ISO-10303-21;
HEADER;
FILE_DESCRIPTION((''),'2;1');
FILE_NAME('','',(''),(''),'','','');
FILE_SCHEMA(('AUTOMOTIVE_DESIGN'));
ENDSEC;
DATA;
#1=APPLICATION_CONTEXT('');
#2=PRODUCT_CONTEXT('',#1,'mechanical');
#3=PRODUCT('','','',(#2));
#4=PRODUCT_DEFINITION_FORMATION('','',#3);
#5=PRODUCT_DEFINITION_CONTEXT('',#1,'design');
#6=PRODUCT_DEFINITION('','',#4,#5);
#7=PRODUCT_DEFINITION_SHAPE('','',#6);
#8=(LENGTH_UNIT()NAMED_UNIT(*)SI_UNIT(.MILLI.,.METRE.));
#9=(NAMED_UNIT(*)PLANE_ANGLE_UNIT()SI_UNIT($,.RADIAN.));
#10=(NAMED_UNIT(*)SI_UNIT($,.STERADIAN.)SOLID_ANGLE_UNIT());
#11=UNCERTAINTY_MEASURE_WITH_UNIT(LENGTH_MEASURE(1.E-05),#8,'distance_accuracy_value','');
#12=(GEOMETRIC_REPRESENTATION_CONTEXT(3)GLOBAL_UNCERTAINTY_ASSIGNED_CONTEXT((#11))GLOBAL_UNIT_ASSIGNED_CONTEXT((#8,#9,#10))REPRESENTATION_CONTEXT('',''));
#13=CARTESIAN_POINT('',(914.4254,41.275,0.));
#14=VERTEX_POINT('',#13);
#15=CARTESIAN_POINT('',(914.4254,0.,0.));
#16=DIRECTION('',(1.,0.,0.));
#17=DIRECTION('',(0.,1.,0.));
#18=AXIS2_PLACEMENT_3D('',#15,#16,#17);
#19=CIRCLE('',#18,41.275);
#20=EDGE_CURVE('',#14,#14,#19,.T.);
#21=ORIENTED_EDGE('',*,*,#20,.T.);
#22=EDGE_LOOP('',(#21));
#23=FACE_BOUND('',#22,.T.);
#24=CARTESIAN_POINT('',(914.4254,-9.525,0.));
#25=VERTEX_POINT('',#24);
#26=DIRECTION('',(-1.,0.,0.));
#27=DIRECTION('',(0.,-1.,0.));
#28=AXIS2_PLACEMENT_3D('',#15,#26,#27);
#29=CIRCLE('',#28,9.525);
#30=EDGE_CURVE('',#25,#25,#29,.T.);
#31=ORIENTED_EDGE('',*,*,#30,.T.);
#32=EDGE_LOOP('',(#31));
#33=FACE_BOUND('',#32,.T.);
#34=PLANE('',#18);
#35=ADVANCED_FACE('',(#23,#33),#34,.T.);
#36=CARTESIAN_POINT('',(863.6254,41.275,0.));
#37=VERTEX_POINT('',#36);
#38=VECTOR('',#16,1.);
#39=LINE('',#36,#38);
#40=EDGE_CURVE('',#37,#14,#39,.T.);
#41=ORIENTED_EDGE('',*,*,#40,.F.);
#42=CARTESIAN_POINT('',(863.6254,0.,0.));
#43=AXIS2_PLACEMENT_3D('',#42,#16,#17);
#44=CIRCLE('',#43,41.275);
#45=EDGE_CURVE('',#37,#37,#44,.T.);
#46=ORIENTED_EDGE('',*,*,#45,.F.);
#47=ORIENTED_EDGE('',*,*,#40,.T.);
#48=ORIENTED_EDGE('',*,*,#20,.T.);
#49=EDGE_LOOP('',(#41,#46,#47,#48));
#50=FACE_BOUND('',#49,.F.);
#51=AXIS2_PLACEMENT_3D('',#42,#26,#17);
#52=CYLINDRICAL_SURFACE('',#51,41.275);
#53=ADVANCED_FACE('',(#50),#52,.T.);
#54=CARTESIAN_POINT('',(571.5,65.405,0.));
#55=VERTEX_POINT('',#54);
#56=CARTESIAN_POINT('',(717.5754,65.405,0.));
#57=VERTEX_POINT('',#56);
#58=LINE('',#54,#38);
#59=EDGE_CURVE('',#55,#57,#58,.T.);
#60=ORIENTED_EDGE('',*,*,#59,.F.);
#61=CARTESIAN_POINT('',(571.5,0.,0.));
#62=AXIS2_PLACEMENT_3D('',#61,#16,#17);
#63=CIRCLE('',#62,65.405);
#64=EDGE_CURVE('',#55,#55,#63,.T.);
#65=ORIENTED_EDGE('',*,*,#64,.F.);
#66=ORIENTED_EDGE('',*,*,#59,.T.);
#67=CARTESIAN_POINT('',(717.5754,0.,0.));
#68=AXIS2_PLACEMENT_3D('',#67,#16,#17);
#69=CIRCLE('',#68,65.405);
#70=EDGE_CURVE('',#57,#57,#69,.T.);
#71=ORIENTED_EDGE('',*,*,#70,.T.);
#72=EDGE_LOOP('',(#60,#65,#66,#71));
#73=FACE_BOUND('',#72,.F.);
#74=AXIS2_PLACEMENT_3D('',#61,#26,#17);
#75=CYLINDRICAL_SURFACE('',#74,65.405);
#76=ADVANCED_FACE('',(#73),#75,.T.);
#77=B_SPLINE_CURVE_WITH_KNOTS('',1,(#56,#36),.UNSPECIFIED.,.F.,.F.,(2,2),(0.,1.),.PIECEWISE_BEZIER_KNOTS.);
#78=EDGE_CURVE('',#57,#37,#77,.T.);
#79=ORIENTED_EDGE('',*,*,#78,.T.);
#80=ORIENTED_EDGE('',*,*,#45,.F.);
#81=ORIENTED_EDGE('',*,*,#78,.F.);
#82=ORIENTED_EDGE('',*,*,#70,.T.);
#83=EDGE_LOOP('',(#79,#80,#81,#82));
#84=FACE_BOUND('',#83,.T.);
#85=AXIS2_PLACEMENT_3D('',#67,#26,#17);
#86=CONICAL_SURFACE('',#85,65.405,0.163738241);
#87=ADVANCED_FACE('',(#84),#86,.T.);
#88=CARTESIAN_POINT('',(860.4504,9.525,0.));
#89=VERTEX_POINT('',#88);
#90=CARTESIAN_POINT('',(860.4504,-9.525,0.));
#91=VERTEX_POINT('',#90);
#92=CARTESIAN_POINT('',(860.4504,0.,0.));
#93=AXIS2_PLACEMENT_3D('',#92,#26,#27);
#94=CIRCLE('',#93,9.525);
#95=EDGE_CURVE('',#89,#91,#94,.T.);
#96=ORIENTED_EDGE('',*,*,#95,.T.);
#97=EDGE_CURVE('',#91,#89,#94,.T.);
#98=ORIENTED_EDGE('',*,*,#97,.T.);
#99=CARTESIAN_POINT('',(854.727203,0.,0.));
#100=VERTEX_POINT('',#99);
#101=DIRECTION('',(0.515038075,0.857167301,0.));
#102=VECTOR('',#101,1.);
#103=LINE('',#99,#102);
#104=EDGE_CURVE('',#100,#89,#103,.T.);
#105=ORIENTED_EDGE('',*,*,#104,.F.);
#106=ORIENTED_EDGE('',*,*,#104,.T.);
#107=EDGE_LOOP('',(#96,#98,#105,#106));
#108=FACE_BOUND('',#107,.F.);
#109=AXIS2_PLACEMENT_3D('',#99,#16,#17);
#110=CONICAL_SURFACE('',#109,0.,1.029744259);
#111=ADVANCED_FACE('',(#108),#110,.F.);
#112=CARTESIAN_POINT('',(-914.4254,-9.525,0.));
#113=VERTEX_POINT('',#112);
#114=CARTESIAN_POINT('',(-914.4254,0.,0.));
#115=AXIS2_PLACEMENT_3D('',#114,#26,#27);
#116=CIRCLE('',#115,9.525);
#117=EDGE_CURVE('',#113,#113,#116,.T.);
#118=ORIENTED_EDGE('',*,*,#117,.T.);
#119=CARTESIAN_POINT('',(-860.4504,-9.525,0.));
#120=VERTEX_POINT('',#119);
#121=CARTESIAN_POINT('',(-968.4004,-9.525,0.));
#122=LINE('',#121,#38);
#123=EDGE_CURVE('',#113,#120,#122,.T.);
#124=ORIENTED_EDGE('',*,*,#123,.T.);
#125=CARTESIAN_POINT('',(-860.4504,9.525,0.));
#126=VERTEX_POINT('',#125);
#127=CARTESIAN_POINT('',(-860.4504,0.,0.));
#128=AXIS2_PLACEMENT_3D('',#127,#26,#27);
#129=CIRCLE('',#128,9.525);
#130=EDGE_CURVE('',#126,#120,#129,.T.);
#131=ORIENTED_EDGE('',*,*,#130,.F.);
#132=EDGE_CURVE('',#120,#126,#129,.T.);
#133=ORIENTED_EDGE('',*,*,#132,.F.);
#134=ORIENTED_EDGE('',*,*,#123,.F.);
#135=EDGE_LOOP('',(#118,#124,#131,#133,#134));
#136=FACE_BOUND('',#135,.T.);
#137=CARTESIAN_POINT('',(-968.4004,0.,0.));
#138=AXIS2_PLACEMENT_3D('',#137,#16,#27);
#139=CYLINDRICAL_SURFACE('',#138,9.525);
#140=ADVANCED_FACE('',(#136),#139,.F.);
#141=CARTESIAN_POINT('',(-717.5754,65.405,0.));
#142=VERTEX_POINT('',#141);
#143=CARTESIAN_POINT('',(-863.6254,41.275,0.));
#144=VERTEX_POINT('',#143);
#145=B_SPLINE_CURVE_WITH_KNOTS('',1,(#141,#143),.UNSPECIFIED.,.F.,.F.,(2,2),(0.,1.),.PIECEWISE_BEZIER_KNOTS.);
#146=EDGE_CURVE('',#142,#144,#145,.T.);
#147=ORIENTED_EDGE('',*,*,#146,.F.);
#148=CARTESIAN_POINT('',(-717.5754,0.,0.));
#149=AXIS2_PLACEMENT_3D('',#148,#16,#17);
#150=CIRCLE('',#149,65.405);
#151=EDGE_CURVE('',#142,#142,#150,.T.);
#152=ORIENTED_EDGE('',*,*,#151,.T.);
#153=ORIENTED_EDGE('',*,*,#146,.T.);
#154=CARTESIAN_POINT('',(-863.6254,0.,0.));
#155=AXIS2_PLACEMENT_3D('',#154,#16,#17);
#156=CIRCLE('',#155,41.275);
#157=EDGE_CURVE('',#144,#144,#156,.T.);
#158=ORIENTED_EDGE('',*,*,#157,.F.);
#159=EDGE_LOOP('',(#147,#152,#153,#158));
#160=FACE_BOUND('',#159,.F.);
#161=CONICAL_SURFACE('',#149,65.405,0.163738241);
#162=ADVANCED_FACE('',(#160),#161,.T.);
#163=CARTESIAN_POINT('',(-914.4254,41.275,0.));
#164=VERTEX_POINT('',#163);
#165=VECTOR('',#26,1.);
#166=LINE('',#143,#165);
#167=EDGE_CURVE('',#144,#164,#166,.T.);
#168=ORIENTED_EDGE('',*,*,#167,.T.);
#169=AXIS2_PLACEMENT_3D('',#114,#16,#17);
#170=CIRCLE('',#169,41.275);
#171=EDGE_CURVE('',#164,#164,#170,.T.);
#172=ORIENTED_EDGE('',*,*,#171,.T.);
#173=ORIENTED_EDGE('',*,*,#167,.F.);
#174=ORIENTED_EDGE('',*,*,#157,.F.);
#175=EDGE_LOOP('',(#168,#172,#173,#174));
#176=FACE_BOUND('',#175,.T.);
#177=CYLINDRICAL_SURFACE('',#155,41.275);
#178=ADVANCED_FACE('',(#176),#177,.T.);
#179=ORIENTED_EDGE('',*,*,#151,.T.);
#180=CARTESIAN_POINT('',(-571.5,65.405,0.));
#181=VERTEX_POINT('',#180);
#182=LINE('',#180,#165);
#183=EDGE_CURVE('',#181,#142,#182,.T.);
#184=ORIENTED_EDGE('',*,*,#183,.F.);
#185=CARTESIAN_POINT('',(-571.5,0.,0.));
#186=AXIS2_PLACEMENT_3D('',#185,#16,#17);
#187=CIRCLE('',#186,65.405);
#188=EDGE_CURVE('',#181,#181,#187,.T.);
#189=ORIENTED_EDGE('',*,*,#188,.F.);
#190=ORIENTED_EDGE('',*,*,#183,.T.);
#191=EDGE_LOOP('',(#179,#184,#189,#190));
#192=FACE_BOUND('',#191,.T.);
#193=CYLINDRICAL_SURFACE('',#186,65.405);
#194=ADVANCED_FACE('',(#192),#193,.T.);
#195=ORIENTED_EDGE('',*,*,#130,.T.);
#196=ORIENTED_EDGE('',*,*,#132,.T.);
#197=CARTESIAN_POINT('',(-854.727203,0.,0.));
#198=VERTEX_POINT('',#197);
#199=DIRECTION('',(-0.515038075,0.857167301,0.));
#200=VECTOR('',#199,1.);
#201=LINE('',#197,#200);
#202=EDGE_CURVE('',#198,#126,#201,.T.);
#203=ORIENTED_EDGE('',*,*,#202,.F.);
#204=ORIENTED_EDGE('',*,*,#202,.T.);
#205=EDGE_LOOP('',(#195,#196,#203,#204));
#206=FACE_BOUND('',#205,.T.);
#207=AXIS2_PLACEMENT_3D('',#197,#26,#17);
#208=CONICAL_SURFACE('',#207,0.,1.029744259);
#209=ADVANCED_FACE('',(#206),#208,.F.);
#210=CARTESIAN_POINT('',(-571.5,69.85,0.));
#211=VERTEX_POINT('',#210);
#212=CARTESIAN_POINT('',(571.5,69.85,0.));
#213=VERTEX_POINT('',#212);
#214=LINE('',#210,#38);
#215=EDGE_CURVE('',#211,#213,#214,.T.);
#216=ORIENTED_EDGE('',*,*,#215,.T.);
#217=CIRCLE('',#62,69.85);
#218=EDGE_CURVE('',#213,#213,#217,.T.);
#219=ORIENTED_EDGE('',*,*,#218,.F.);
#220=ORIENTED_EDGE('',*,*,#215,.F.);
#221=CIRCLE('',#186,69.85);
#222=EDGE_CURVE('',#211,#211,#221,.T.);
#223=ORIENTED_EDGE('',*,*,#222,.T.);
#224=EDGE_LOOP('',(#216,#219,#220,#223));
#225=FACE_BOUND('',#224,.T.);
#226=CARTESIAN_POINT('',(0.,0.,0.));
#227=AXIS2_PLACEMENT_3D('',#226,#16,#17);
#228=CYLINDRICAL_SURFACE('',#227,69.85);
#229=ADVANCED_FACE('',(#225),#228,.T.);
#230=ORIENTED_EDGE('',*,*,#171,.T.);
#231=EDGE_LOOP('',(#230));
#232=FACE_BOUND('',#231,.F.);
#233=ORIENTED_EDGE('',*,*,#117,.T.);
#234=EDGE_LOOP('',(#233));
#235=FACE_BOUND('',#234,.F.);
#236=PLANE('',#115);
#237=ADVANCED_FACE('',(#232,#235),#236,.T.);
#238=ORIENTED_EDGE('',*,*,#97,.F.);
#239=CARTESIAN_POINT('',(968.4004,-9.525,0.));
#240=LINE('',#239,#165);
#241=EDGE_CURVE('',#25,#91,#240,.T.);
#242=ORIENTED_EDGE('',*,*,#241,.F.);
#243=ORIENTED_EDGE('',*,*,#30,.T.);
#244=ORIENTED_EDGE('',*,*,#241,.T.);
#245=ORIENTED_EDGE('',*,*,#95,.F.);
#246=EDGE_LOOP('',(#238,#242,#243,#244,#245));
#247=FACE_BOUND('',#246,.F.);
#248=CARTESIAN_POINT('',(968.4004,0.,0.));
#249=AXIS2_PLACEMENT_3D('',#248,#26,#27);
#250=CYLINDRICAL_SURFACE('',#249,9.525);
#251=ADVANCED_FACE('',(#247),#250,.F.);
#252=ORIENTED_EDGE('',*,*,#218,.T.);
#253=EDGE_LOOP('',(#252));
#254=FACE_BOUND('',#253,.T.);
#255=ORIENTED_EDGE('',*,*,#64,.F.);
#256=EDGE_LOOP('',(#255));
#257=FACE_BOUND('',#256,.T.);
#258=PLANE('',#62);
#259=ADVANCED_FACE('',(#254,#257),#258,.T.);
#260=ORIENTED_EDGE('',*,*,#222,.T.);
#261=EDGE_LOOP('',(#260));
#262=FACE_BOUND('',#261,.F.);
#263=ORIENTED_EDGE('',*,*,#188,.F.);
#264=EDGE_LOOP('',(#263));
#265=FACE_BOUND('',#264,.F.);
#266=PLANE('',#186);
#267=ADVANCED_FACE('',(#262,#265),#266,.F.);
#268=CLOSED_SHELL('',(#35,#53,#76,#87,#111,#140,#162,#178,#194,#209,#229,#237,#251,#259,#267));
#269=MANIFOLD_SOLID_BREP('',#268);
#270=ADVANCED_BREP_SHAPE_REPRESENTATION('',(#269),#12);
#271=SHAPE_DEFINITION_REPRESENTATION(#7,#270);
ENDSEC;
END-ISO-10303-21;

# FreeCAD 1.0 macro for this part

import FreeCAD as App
import Part
import Sketcher

V = App.Vector
Q = App.Units.Quantity

doc = App.newDocument("Part")
params = doc.addObject("Spreadsheet::Sheet", "Params")
for row, (alias, value) in enumerate([
    ("sketch1_diameter", "5.5 in"),
    ("pad1_length", "45 in"),
    ("sketch2_diameter", "5.15 in"),
    ("pad2_length", "5.751 in"),
    ("sketch3_diameter", "5.15 in"),
    ("sketch4_diameter", "3.25 in"),
    ("sketch5_diameter", "3.25 in"),
    ("pad3_length", "2 in"),
    ("sketch6_diameter", "0.75 in"),
    ("hole_diameter", "0.75 in"),
    ("hole_depth", "2.125 in"),
], start=1):
    params.set(f"A{row}", alias)
    params.set(f"B{row}", "=" + value)
    params.setAlias(f"B{row}", alias)

body = doc.addObject("PartDesign::Body", "Body")

# Sketch on YZ plane
sketch1 = body.newObject("Sketcher::SketchObject", "Sketch")
sketch1.AttachmentSupport = (doc.getObject("YZ_Plane"), [""])
sketch1.MapMode = "FlatFace"
sketch1.addGeometry(Part.Circle(V(0, 0, 0), V(0, 0, 1), 69.85), False)
sketch1.addConstraint([
    Sketcher.Constraint("Coincident", 0, 3, -1, 1),
    Sketcher.Constraint("Diameter", 0, Q("5.5 in")),
])
sketch1.setExpression("Constraints[1]", "Params.sketch1_diameter")
pad1 = body.newObject("PartDesign::Pad", "Pad")
pad1.Profile = sketch1
pad1.setExpression("Length", "Params.pad1_length")
pad1.Midplane = True

# Sketch on YZ plane
sketch2 = body.newObject("Sketcher::SketchObject", "Sketch001")
sketch2.AttachmentSupport = (doc.getObject("YZ_Plane"), [""])
sketch2.MapMode = "FlatFace"
sketch2.AttachmentOffset = App.Placement(V(0, 0, 22.5 * 25.4), App.Rotation())
sketch2.addGeometry(Part.Circle(V(0, 0, 0), V(0, 0, 1), 65.405), False)
sketch2.addConstraint([
    Sketcher.Constraint("Coincident", 0, 3, -1, 1),
    Sketcher.Constraint("Diameter", 0, Q("5.15 in")),
])
sketch2.setExpression("Constraints[1]", "Params.sketch2_diameter")
pad2 = body.newObject("PartDesign::Pad", "Pad001")
pad2.Profile = sketch2
pad2.setExpression("Length", "Params.pad2_length")

# Sketch on YZ plane
sketch3 = body.newObject("Sketcher::SketchObject", "Sketch002")
sketch3.AttachmentSupport = (doc.getObject("YZ_Plane"), [""])
sketch3.MapMode = "FlatFace"
sketch3.AttachmentOffset = App.Placement(V(0, 0, 28.251 * 25.4), App.Rotation())
sketch3.addGeometry(Part.Circle(V(0, 0, 0), V(0, 0, 1), 65.405), False)
sketch3.addConstraint([
    Sketcher.Constraint("Coincident", 0, 3, -1, 1),
    Sketcher.Constraint("Diameter", 0, Q("5.15 in")),
])
sketch3.setExpression("Constraints[1]", "Params.sketch3_diameter")

# Sketch on YZ plane
sketch4 = body.newObject("Sketcher::SketchObject", "Sketch003")
sketch4.AttachmentSupport = (doc.getObject("YZ_Plane"), [""])
sketch4.MapMode = "FlatFace"
sketch4.AttachmentOffset = App.Placement(V(0, 0, 34.001 * 25.4), App.Rotation())
sketch4.addGeometry(Part.Circle(V(0, 0, 0), V(0, 0, 1), 41.275), False)
sketch4.addConstraint([
    Sketcher.Constraint("Coincident", 0, 3, -1, 1),
    Sketcher.Constraint("Diameter", 0, Q("3.25 in")),
])
sketch4.setExpression("Constraints[1]", "Params.sketch4_diameter")

additiveloft = body.newObject("PartDesign::AdditiveLoft", "AdditiveLoft")
additiveloft.Profile = sketch3
additiveloft.Sections = [sketch4]

# Sketch on YZ plane
sketch5 = body.newObject("Sketcher::SketchObject", "Sketch004")
sketch5.AttachmentSupport = (doc.getObject("YZ_Plane"), [""])
sketch5.MapMode = "FlatFace"
sketch5.AttachmentOffset = App.Placement(V(0, 0, 34.001 * 25.4), App.Rotation())
sketch5.addGeometry(Part.Circle(V(0, 0, 0), V(0, 0, 1), 41.275), False)
sketch5.addConstraint([
    Sketcher.Constraint("Coincident", 0, 3, -1, 1),
    Sketcher.Constraint("Diameter", 0, Q("3.25 in")),
])
sketch5.setExpression("Constraints[1]", "Params.sketch5_diameter")
pad3 = body.newObject("PartDesign::Pad", "Pad002")
pad3.Profile = sketch5
pad3.setExpression("Length", "Params.pad3_length")

# Sketch on YZ plane
sketch6 = body.newObject("Sketcher::SketchObject", "Sketch005")
sketch6.AttachmentSupport = (doc.getObject("YZ_Plane"), [""])
sketch6.MapMode = "FlatFace"
sketch6.AttachmentOffset = App.Placement(V(0, 0, 36.001 * 25.4), App.Rotation())
sketch6.addGeometry(Part.Circle(V(0, 0, 0), V(0, 0, 1), 9.525), False)
sketch6.addConstraint([
    Sketcher.Constraint("Coincident", 0, 3, -1, 1),
    Sketcher.Constraint("Diameter", 0, Q("0.75 in")),
])
sketch6.setExpression("Constraints[1]", "Params.sketch6_diameter")
doc.recompute()
hole = body.newObject("PartDesign::Hole", "Hole")
hole.Profile = sketch6
hole.ThreadType = "None"
hole.setExpression("Diameter", "Params.hole_diameter")
hole.DepthType = "Dimension"
hole.setExpression("Depth", "Params.hole_depth")
hole.DrillPoint = "Angled"
hole.DrillPointAngle = 118
body2 = doc.addObject("PartDesign::Body", "Body001")
doc.recompute()

body2.BaseFeature = body
doc.recompute()

mirroring = doc.addObject("Part::Mirroring", "Mirroring")
mirroring.Source = body
mirroring.Base = V(0, 0, 0)
mirroring.Normal = V(1, 0, 0)
body3 = doc.addObject("PartDesign::Body", "Body002")
body3.BaseFeature = mirroring
boolean = body2.newObject("PartDesign::Boolean", "Boolean")
boolean.Type = "Fuse"
boolean.addObjects([body3])
doc.recompute()
mirroring.Visibility = False

doc.recompute()
